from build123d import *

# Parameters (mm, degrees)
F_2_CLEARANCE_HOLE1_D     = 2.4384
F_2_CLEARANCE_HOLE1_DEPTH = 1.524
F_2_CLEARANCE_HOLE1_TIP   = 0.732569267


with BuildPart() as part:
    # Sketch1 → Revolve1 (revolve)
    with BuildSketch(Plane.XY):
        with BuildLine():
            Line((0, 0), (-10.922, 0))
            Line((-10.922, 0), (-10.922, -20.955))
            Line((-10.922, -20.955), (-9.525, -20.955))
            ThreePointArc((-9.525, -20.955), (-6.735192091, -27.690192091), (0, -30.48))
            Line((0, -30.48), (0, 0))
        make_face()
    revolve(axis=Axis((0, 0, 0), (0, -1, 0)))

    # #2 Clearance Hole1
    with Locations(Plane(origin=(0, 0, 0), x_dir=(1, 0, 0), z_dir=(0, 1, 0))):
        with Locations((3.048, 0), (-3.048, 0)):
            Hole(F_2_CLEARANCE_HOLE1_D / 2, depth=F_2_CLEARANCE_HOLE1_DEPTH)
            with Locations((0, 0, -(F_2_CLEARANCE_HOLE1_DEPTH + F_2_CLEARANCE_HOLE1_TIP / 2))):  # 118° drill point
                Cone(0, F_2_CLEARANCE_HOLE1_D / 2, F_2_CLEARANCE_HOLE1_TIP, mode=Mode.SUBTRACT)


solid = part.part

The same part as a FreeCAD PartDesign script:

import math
import FreeCAD as App
import Part
import Sketcher

V = App.Vector
Q = App.Units.Quantity

doc = App.newDocument("Part")
body = doc.addObject("PartDesign::Body", "Body")

# Sketch on XY plane
sketch1 = doc.addObject("Sketcher::SketchObject", "Sketch")
body.addObject(sketch1)
sketch1.AttachmentSupport = (doc.XY_Plane, [""])
sketch1.MapMode = "FlatFace"
sketch1.addGeometry([
    Part.LineSegment(V(0, 0, 0), V(-10.922, 0, 0)),  # 0
    Part.LineSegment(V(-10.922, 0, 0), V(-10.922, -20.955, 0)),  # 1
    Part.LineSegment(V(-10.922, -20.955, 0), V(-9.525, -20.955, 0)),  # 2
    Part.ArcOfCircle(Part.Circle(V(0, -20.955, 0), V(0, 0, 1), 9.525), math.radians(180), math.radians(270)),  # 3
    Part.LineSegment(V(0, -30.48, 0), V(0, 0, 0)),  # 4
], False)
sketch1.addConstraint([
    Sketcher.Constraint("Coincident", 0, 2, 1, 1),
    Sketcher.Constraint("Coincident", 1, 2, 2, 1),
    Sketcher.Constraint("Coincident", 2, 2, 3, 1),
    Sketcher.Constraint("Coincident", 3, 2, 4, 1),
    Sketcher.Constraint("Coincident", 4, 2, 0, 1),
    Sketcher.Constraint("Horizontal", 0),
    Sketcher.Constraint("Vertical", 1),
    Sketcher.Constraint("Horizontal", 2),
    Sketcher.Constraint("Vertical", 4),
    Sketcher.Constraint("Coincident", 4, 2, -1, 1),
    Sketcher.Constraint("PointOnObject", 3, 3, -2),
    Sketcher.Constraint("Horizontal", 3, 3, 1, 2),
    Sketcher.Constraint("DistanceY", 4, 1, 4, 2, Q("1.2 in")),
    Sketcher.Constraint("Radius", 3, Q("0.375 in")),
    Sketcher.Constraint("DistanceX", 0, 2, 0, 1, Q("0.43 in")),
])
revolution = doc.addObject("PartDesign::Revolution", "Revolution")
body.addObject(revolution)
revolution.Profile = sketch1
revolution.ReferenceAxis = (sketch1, ["V_Axis"])
revolution.Angle = 360

# Sketch on XZ plane
sketch2 = doc.addObject("Sketcher::SketchObject", "Sketch001")
body.addObject(sketch2)
sketch2.AttachmentSupport = (doc.XZ_Plane, [""])
sketch2.MapMode = "FlatFace"
sketch2.addGeometry([
    Part.Circle(V(3.048, 0, 0), V(0, 0, 1), 1.2192),
    Part.Circle(V(-3.048, 0, 0), V(0, 0, 1), 1.2192),
], False)
sketch2.addConstraint([
    Sketcher.Constraint("Equal", 0, 1),
    Sketcher.Constraint("Symmetric", 0, 3, 1, 3, -1, 1),
    Sketcher.Constraint("PointOnObject", 0, 3, -1),
    Sketcher.Constraint("Diameter", 0, Q("0.096 in")),
    Sketcher.Constraint("DistanceX", -1, 1, 0, 3, Q("0.12 in")),
])
doc.recompute()
hole = doc.addObject("PartDesign::Hole", "Hole")
body.addObject(hole)
hole.Profile = sketch2
hole.ThreadType = "None"
hole.Diameter = Q("0.096 in")
hole.DepthType = "Dimension"
hole.Depth = Q("0.06 in")
hole.DrillPoint = "Angled"
hole.DrillPointAngle = 118
hole.Reversed = True

doc.recompute()
